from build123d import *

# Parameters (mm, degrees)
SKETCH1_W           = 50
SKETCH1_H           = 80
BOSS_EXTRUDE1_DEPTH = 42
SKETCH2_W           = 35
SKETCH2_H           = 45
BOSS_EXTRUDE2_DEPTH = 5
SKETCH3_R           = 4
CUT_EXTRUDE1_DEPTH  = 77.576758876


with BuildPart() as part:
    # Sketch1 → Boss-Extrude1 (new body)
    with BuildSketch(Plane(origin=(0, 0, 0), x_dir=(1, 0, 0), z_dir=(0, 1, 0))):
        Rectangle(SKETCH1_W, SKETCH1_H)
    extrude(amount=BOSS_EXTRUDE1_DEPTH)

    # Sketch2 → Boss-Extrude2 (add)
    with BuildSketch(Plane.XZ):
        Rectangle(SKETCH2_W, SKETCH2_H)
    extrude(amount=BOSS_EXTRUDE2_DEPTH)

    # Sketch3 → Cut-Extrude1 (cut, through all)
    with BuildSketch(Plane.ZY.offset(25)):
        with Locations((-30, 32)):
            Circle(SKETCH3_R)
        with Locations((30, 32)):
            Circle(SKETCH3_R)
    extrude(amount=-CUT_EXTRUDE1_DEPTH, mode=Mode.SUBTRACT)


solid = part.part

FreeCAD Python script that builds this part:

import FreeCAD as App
import Part
import Sketcher

V = App.Vector
Q = App.Units.Quantity

doc = App.newDocument("Part")
body = doc.addObject("PartDesign::Body", "Body")

# Sketch on XZ plane
sketch1 = body.newObject("Sketcher::SketchObject", "Sketch")
sketch1.AttachmentSupport = (doc.getObject("XZ_Plane"), [""])
sketch1.MapMode = "FlatFace"
sketch1.addGeometry([
    Part.LineSegment(V(-25, -40, 0), V(-25, 40, 0)),
    Part.LineSegment(V(-25, 40, 0), V(25, 40, 0)),
    Part.LineSegment(V(25, 40, 0), V(25, -40, 0)),
    Part.LineSegment(V(25, -40, 0), V(-25, -40, 0)),
], False)
sketch1.addConstraint([
    Sketcher.Constraint("Coincident", 0, 2, 1, 1),
    Sketcher.Constraint("Coincident", 1, 2, 2, 1),
    Sketcher.Constraint("Coincident", 2, 2, 3, 1),
    Sketcher.Constraint("Coincident", 3, 2, 0, 1),
    Sketcher.Constraint("Vertical", 0),
    Sketcher.Constraint("Horizontal", 1),
    Sketcher.Constraint("Vertical", 2),
    Sketcher.Constraint("Horizontal", 3),
    Sketcher.Constraint("Symmetric", 0, 2, 2, 2, -1, 1),
    Sketcher.Constraint("DistanceX", 1, 1, 1, 2, Q("50 mm")),
    Sketcher.Constraint("DistanceY", 0, 1, 0, 2, Q("80 mm")),
])
pad1 = body.newObject("PartDesign::Pad", "Pad")
pad1.Profile = sketch1
pad1.Length = 42
pad1.Reversed = True

# Sketch on XZ plane
sketch2 = body.newObject("Sketcher::SketchObject", "Sketch001")
sketch2.AttachmentSupport = (doc.getObject("XZ_Plane"), [""])
sketch2.MapMode = "FlatFace"
sketch2.addGeometry([
    Part.LineSegment(V(-17.5, 22.5, 0), V(-17.5, -22.5, 0)),
    Part.LineSegment(V(-17.5, -22.5, 0), V(17.5, -22.5, 0)),
    Part.LineSegment(V(17.5, -22.5, 0), V(17.5, 22.5, 0)),
    Part.LineSegment(V(17.5, 22.5, 0), V(-17.5, 22.5, 0)),
], False)
sketch2.addConstraint([
    Sketcher.Constraint("Coincident", 0, 2, 1, 1),
    Sketcher.Constraint("Coincident", 1, 2, 2, 1),
    Sketcher.Constraint("Coincident", 2, 2, 3, 1),
    Sketcher.Constraint("Coincident", 3, 2, 0, 1),
    Sketcher.Constraint("Vertical", 0),
    Sketcher.Constraint("Horizontal", 1),
    Sketcher.Constraint("Vertical", 2),
    Sketcher.Constraint("Horizontal", 3),
    Sketcher.Constraint("Symmetric", 0, 2, 2, 2, -1, 1),
    Sketcher.Constraint("DistanceX", 1, 1, 1, 2, Q("35 mm")),
    Sketcher.Constraint("DistanceY", 0, 2, 0, 1, Q("45 mm")),
])
pad2 = body.newObject("PartDesign::Pad", "Pad001")
pad2.Profile = sketch2
pad2.Length = 5

# Sketch on YZ plane
sketch3 = body.newObject("Sketcher::SketchObject", "Sketch002")
sketch3.AttachmentSupport = (doc.getObject("YZ_Plane"), [""])
sketch3.MapMode = "FlatFace"
sketch3.AttachmentOffset = App.Placement(V(0, 0, -25), App.Rotation())
sketch3.addGeometry([
    Part.Circle(V(32, -30, 0), V(0, 0, 1), 4),
    Part.Circle(V(32, 30, 0), V(0, 0, 1), 4),
], False)
sketch3.addConstraint([
    Sketcher.Constraint("Equal", 0, 1),
    Sketcher.Constraint("Symmetric", 0, 3, 1, 3, -1),
    Sketcher.Constraint("Diameter", 0, Q("8 mm")),
    Sketcher.Constraint("DistanceX", -1, 1, 0, 3, Q("32 mm")),
    Sketcher.Constraint("DistanceY", 0, 3, -1, 1, Q("30 mm")),
])
pocket1 = body.newObject("PartDesign::Pocket", "Pocket")
pocket1.Profile = sketch3
pocket1.Type = "ThroughAll"
pocket1.Reversed = True

doc.recompute()
